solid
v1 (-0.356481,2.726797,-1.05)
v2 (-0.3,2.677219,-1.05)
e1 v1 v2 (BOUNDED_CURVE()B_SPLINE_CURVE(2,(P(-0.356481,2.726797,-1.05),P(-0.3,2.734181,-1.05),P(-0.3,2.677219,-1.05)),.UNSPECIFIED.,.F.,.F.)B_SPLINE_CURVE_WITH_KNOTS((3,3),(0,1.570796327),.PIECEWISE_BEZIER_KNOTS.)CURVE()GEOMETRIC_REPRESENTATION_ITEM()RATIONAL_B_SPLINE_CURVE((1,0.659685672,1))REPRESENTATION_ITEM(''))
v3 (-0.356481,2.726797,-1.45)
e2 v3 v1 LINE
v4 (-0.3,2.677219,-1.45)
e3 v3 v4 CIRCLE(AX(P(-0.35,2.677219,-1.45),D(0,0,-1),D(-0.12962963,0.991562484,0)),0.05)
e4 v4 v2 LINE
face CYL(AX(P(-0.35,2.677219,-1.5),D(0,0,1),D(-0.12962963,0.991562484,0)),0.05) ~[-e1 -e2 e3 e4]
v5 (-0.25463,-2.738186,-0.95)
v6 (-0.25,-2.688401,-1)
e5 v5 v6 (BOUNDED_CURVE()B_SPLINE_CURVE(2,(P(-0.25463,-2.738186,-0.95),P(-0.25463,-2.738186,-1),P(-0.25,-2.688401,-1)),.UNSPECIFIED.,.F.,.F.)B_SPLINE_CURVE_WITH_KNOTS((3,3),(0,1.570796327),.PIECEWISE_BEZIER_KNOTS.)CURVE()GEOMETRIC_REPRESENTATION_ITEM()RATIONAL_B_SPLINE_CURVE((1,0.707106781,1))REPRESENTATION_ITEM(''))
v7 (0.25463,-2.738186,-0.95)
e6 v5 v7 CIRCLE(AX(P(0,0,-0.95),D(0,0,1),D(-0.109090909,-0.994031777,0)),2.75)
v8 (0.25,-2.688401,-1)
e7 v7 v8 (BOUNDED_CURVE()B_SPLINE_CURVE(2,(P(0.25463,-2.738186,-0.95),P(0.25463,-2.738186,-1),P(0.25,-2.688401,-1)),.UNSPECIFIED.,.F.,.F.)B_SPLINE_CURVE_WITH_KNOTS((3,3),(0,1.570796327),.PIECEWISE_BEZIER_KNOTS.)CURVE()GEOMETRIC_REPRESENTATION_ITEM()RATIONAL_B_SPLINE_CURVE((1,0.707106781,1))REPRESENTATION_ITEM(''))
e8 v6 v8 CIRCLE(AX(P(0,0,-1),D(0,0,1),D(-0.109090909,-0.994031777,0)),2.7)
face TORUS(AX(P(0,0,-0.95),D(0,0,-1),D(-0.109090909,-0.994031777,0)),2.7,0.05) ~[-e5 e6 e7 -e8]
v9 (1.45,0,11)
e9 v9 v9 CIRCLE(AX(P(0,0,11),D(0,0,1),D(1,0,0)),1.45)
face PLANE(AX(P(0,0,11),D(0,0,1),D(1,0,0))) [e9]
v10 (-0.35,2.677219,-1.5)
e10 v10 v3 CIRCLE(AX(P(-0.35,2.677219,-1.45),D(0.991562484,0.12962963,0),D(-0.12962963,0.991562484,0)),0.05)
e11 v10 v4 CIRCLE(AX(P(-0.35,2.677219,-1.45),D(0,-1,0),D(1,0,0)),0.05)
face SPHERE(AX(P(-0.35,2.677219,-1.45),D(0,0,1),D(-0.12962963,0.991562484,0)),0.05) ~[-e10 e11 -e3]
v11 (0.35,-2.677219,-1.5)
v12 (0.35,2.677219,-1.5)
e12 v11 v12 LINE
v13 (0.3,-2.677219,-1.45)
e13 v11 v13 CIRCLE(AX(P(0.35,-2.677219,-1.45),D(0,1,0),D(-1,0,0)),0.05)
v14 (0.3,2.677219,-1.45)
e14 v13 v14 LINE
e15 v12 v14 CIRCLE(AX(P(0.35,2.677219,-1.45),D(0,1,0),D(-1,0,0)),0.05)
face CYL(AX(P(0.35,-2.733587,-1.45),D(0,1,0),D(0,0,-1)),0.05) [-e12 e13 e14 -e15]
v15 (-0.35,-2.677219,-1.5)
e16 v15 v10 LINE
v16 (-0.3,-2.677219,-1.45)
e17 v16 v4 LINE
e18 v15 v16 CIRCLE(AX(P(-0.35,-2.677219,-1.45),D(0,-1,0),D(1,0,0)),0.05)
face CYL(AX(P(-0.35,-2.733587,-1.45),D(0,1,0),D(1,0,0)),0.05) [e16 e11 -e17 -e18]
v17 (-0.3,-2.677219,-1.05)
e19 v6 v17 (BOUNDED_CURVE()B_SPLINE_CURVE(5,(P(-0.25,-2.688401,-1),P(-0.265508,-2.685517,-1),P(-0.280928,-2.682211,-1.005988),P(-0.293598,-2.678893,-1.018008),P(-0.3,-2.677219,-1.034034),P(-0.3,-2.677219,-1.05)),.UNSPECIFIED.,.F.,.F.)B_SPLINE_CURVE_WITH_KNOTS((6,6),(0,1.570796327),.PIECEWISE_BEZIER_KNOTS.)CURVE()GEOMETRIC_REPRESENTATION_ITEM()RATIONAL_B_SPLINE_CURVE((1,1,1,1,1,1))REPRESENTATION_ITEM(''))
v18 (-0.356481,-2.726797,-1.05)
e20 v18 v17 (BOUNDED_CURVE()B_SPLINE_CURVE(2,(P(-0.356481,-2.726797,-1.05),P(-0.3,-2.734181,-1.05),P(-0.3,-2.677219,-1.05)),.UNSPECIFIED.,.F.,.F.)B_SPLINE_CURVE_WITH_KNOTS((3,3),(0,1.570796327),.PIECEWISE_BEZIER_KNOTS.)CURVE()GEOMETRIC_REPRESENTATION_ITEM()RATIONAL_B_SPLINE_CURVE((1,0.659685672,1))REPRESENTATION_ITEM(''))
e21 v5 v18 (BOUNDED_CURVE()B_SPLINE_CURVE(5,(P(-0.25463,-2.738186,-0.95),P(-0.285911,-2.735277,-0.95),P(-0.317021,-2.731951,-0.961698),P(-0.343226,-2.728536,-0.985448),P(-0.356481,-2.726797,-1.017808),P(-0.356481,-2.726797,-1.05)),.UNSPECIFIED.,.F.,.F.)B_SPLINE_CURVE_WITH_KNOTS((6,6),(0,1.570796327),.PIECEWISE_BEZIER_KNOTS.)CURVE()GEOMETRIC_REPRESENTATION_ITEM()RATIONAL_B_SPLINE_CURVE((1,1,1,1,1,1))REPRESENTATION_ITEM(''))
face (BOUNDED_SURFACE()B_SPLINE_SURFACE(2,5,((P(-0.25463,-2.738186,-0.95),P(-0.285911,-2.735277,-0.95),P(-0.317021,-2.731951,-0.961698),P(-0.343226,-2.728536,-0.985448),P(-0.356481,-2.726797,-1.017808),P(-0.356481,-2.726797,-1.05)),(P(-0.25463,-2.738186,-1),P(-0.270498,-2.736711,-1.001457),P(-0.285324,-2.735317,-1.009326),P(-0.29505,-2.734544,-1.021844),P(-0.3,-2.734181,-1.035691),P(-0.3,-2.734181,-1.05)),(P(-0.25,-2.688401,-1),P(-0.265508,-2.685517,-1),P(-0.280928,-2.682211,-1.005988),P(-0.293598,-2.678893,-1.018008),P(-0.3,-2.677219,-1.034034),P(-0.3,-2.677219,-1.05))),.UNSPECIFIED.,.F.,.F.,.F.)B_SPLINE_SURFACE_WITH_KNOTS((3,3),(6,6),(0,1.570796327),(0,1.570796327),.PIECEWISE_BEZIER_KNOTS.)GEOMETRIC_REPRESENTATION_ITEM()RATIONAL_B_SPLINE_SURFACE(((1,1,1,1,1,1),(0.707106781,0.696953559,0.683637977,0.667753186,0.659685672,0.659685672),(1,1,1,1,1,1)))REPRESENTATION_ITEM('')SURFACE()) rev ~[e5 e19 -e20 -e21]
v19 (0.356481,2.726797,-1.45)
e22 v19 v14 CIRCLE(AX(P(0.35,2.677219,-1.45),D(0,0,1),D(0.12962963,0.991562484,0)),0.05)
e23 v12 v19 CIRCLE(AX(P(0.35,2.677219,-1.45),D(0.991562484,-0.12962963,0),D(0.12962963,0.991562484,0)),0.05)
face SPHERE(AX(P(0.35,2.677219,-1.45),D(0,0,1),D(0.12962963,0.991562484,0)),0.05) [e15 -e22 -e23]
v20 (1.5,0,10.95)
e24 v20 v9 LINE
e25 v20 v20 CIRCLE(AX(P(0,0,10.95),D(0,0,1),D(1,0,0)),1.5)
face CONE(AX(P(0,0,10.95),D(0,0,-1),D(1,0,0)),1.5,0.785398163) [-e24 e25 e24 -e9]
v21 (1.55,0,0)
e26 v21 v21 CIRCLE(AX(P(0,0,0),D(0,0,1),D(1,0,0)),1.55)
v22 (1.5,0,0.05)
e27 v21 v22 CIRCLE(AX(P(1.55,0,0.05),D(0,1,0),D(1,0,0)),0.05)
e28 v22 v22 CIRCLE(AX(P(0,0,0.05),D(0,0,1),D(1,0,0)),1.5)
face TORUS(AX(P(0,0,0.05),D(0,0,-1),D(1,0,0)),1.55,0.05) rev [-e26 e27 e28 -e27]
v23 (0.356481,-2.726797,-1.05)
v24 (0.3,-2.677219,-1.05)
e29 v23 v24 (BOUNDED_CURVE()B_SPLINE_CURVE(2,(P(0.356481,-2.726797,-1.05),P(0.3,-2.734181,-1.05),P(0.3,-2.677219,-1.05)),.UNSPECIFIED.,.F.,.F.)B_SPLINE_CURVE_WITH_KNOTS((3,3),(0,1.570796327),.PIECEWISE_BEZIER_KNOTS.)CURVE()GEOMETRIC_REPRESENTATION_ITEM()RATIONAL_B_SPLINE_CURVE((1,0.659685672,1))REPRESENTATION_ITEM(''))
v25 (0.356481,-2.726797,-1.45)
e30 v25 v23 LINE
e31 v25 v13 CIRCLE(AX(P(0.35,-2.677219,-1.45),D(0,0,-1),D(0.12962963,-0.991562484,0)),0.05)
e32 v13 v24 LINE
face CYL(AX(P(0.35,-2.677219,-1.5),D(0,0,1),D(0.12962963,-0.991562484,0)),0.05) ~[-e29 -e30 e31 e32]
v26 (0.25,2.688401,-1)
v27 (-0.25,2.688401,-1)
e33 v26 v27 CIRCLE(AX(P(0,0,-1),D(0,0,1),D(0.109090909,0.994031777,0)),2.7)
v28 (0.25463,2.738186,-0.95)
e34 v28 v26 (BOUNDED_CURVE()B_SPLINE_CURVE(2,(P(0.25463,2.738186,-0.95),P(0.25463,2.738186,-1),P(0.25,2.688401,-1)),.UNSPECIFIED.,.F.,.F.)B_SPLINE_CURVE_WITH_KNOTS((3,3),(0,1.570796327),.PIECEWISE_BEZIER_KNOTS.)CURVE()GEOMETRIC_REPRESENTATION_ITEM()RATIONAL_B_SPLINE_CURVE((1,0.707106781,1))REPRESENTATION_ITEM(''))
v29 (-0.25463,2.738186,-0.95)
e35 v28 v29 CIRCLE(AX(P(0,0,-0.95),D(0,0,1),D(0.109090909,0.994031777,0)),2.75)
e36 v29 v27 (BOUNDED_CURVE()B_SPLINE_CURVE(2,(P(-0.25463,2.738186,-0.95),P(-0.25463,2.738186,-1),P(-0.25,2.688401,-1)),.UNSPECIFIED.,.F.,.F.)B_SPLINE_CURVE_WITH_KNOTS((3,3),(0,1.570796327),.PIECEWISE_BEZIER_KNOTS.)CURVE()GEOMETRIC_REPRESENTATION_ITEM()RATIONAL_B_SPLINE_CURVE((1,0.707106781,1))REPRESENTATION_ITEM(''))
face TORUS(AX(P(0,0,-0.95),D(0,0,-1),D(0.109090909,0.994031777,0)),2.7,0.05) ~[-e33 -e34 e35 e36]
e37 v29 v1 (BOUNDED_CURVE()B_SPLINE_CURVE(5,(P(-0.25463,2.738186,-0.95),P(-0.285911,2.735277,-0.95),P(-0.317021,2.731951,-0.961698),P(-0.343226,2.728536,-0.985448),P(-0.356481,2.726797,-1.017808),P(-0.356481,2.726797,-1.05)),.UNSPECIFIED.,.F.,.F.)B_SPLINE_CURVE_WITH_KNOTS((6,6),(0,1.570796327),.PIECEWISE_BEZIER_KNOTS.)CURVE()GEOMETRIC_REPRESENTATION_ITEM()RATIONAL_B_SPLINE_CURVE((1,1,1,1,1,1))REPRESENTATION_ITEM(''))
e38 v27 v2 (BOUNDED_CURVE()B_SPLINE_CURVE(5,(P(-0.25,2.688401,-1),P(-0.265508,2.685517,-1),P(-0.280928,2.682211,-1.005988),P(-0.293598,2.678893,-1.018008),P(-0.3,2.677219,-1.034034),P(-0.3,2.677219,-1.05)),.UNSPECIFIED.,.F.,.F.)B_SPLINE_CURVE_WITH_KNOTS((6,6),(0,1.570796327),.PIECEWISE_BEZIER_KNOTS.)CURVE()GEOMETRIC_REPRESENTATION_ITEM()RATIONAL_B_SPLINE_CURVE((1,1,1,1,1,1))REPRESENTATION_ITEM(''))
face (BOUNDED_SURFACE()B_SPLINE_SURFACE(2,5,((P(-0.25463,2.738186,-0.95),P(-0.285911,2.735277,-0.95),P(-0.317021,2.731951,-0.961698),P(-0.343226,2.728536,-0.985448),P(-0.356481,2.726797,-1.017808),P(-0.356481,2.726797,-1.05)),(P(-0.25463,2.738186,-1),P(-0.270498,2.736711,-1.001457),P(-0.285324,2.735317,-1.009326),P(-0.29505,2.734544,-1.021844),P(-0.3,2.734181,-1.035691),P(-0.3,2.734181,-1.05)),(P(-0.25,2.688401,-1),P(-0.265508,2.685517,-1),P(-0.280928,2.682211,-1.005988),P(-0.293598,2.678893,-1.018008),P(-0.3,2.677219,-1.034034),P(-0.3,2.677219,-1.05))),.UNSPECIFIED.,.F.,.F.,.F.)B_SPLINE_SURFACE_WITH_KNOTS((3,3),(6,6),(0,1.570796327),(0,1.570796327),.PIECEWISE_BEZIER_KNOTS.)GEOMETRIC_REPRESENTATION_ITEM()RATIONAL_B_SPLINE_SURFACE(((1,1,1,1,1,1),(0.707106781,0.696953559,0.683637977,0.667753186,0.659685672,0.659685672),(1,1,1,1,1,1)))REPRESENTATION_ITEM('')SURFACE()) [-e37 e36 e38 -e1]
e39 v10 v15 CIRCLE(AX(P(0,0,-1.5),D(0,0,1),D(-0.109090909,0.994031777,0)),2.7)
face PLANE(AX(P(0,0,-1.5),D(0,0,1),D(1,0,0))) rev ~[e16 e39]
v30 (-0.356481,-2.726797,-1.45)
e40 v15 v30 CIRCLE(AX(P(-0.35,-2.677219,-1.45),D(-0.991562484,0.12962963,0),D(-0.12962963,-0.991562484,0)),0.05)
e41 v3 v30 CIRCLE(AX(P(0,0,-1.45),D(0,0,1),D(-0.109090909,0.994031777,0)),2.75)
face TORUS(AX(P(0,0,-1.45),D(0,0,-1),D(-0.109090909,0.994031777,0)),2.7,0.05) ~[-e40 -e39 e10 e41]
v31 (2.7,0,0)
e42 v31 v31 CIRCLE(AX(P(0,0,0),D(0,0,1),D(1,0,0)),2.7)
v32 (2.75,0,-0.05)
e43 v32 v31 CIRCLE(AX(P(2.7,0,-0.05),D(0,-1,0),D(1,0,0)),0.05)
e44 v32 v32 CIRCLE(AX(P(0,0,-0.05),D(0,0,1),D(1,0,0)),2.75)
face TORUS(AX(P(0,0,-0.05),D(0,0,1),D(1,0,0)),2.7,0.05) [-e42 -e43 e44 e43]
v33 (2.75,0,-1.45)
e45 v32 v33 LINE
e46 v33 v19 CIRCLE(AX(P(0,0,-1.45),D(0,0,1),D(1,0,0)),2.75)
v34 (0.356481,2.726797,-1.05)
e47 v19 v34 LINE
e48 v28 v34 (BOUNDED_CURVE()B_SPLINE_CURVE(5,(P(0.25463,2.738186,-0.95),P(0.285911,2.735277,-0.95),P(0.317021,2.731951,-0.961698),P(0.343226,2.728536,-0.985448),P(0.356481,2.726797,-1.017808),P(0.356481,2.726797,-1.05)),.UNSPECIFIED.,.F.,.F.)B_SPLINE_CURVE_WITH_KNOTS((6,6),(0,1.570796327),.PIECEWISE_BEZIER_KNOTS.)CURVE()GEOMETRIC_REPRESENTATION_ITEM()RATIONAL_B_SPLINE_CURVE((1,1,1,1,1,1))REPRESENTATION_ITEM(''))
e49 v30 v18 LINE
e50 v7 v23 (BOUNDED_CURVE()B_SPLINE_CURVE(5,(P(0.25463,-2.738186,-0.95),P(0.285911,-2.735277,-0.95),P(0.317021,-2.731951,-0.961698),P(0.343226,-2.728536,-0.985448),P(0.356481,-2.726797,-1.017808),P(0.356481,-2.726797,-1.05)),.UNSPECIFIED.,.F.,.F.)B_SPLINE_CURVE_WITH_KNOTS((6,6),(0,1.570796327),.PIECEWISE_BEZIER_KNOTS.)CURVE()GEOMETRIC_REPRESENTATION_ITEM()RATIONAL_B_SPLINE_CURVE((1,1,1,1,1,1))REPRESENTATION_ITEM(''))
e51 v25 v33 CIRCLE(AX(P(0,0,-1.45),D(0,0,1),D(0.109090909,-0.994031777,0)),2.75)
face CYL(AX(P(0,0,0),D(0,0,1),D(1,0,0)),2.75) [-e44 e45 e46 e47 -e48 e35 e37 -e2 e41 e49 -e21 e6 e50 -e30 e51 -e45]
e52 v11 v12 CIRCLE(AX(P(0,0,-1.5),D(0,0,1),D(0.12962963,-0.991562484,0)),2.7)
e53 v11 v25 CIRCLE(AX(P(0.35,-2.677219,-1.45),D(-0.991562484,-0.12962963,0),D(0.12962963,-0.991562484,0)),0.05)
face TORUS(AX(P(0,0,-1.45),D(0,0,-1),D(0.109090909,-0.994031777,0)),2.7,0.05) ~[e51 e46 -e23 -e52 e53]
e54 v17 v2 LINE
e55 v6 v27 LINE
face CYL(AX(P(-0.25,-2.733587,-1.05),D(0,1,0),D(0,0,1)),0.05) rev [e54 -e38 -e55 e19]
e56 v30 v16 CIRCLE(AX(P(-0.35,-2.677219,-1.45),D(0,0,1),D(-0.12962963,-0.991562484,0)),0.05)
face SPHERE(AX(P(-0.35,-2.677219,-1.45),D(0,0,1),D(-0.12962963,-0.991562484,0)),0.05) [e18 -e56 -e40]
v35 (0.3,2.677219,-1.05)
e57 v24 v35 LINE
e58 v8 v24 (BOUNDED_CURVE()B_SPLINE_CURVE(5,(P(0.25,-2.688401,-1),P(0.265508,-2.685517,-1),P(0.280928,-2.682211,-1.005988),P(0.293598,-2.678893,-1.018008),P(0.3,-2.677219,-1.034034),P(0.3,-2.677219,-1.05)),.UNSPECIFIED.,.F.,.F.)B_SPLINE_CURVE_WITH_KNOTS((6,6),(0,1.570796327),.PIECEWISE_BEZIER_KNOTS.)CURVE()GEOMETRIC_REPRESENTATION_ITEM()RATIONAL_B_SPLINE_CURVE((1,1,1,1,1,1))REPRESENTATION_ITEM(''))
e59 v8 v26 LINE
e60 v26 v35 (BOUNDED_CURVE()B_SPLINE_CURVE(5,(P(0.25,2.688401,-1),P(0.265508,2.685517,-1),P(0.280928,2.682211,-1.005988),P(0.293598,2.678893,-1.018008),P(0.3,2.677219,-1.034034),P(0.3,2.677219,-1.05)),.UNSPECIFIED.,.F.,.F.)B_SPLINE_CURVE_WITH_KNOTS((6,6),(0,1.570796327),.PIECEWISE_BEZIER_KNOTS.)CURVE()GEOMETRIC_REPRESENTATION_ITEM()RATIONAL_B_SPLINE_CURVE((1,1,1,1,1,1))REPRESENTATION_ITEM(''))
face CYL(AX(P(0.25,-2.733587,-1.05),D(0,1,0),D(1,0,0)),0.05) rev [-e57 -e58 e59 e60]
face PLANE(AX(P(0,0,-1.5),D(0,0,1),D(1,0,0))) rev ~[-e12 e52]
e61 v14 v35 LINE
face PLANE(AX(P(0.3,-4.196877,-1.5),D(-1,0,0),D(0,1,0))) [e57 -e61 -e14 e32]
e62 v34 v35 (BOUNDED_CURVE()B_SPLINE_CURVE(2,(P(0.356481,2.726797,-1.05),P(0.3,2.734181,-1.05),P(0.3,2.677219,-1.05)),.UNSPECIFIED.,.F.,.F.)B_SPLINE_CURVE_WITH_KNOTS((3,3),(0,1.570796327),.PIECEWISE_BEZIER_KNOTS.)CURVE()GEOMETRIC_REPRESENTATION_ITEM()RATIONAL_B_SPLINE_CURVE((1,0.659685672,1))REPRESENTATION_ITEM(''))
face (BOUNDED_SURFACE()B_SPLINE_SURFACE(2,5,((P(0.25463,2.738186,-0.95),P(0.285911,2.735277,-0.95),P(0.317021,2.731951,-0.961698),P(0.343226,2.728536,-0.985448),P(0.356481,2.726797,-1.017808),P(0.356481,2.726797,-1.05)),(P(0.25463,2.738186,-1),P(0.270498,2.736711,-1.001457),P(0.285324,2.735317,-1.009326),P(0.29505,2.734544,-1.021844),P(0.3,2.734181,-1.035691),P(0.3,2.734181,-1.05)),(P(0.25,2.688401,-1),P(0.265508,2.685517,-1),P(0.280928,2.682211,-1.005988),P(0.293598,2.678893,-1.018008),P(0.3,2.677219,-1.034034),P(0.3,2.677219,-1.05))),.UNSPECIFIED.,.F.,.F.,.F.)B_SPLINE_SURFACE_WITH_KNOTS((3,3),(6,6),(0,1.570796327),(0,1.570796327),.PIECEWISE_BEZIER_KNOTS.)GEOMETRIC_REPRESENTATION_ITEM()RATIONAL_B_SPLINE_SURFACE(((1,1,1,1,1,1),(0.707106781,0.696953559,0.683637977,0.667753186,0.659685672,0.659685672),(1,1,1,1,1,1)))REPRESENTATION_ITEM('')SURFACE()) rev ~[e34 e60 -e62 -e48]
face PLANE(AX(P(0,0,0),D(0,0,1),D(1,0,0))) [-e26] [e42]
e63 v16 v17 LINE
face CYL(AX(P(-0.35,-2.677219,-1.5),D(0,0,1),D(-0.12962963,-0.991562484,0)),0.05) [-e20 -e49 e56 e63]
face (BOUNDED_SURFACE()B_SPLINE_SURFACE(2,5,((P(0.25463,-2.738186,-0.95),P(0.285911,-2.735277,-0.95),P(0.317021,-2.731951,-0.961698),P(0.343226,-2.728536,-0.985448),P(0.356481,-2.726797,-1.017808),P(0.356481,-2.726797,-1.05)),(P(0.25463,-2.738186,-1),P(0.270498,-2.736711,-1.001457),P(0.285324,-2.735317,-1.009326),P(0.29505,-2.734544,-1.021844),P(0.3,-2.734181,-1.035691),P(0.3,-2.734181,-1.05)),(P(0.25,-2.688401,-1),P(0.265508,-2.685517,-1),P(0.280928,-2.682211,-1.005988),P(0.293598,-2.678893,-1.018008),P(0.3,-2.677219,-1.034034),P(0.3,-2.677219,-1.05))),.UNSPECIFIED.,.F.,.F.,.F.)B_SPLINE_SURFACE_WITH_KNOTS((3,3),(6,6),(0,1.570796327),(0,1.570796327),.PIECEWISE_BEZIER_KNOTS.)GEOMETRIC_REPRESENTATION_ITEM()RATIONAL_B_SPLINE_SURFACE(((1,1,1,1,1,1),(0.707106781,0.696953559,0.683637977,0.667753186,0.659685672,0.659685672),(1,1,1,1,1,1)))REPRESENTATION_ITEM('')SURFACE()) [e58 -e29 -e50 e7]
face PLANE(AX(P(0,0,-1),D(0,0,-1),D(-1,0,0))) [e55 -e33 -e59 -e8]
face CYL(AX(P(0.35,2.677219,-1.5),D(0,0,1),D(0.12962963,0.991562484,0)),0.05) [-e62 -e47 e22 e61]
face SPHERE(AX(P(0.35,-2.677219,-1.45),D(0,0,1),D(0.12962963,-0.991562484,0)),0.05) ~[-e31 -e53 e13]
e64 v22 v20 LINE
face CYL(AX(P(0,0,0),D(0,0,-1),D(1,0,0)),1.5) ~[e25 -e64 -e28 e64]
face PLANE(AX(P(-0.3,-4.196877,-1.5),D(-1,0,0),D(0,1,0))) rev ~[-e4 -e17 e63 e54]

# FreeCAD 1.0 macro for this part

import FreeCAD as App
import Part
import Sketcher

V = App.Vector


def edges_at(feature, points):
    """Names of the edges that pass closest to the given points."""
    edges = feature.Shape.Edges
    near = lambda p: min(range(len(edges)), key=lambda i: edges[i].distToShape(Part.Vertex(*p))[0])
    return sorted({f"Edge{near(p) + 1}" for p in points})

doc = App.newDocument("Part")
body = doc.addObject("PartDesign::Body", "Body")

# Sketch on XY plane
sketch1 = body.newObject("Sketcher::SketchObject", "Sketch")
sketch1.AttachmentSupport = (doc.getObject("XY_Plane"), [""])
sketch1.MapMode = "FlatFace"
sketch1.addGeometry(Part.Circle(V(0, 0, 0), V(0, 0, 1), 1.5), False)
sketch1.addConstraint(Sketcher.Constraint("Coincident", 0, 3, -1, 1))
sketch1.addConstraint(Sketcher.Constraint("Diameter", 0, 3.0))
pad1 = body.newObject("PartDesign::Pad", "Pad")
pad1.Profile = sketch1
pad1.Length = 11

# Sketch on XY plane
sketch2 = body.newObject("Sketcher::SketchObject", "Sketch001")
sketch2.AttachmentSupport = (doc.getObject("XY_Plane"), [""])
sketch2.MapMode = "FlatFace"
sketch2.addGeometry(Part.Circle(V(0, 0, 0), V(0, 0, 1), 2.8), False)
sketch2.addConstraint(Sketcher.Constraint("Coincident", 0, 3, -1, 1))
sketch2.addConstraint(Sketcher.Constraint("Diameter", 0, 5.5))
pad2 = body.newObject("PartDesign::Pad", "Pad001")
pad2.Profile = sketch2
pad2.Length = 1.5
pad2.Reversed = True

# Sketch on XY plane
sketch3 = body.newObject("Sketcher::SketchObject", "Sketch002")
sketch3.AttachmentSupport = (doc.getObject("XY_Plane"), [""])
sketch3.MapMode = "FlatFace"
sketch3.AttachmentOffset = App.Placement(V(0, 0, -1.5), App.Rotation())
sketch3.addGeometry(Part.LineSegment(V(0.3, 4.2, 0), V(0.3, -4.2, 0)), False)
sketch3.addGeometry(Part.LineSegment(V(0.3, -4.2, 0), V(-0.3, -4.2, 0)), False)
sketch3.addGeometry(Part.LineSegment(V(-0.3, -4.2, 0), V(-0.3, 4.2, 0)), False)
sketch3.addGeometry(Part.LineSegment(V(-0.3, 4.2, 0), V(0.3, 4.2, 0)), False)
sketch3.addConstraint(Sketcher.Constraint("Coincident", 0, 2, 1, 1))
sketch3.addConstraint(Sketcher.Constraint("Coincident", 1, 2, 2, 1))
sketch3.addConstraint(Sketcher.Constraint("Coincident", 2, 2, 3, 1))
sketch3.addConstraint(Sketcher.Constraint("Coincident", 3, 2, 0, 1))
sketch3.addConstraint(Sketcher.Constraint("Vertical", 0))
sketch3.addConstraint(Sketcher.Constraint("Horizontal", 1))
sketch3.addConstraint(Sketcher.Constraint("Vertical", 2))
sketch3.addConstraint(Sketcher.Constraint("Horizontal", 3))
sketch3.addConstraint(Sketcher.Constraint("Symmetric", 0, 2, 2, 2, -1, 1))
sketch3.addConstraint(Sketcher.Constraint("DistanceX", 1, 2, 1, 1, 0.6))
sketch3.addConstraint(Sketcher.Constraint("DistanceY", 0, 2, 0, 1, 8.393754))
pocket1 = body.newObject("PartDesign::Pocket", "Pocket")
pocket1.Profile = sketch3
pocket1.Length = 0.5
pocket1.Reversed = True
doc.recompute()

fillet = body.newObject("PartDesign::Fillet", "Fillet")
fillet.Base = (pocket1, edges_at(pocket1, [
    (-2.75, 0, -1.5),
    (2.048, -1.835, -1.5),
    (0.3, 0, -1.5),
    (-0.3, 0, -1.5),
    (0, 2.75, -1),
    (0, -2.75, -1),
    (-0.3, -2.734, -1.25),
    (-0.3, 2.734, -1.25),
    (0.3, 2.734, -1.25),
    (0.3, -2.734, -1.25),
    (-0.3, 0, -1),
    (0.3, 0, -1),
    (-1.5, 0, 0),
]))
fillet.Radius = 0.05
doc.recompute()

fillet2 = body.newObject("PartDesign::Fillet", "Fillet001")
fillet2.Base = (fillet, edges_at(fillet, [(-2.75, 0, 0)]))
fillet2.Radius = 0.05
doc.recompute()

chamfer = body.newObject("PartDesign::Chamfer", "Chamfer")
chamfer.Base = (fillet2, edges_at(fillet2, [(-1.5, 0, 11)]))
chamfer.Size = 0.05

doc.recompute()
